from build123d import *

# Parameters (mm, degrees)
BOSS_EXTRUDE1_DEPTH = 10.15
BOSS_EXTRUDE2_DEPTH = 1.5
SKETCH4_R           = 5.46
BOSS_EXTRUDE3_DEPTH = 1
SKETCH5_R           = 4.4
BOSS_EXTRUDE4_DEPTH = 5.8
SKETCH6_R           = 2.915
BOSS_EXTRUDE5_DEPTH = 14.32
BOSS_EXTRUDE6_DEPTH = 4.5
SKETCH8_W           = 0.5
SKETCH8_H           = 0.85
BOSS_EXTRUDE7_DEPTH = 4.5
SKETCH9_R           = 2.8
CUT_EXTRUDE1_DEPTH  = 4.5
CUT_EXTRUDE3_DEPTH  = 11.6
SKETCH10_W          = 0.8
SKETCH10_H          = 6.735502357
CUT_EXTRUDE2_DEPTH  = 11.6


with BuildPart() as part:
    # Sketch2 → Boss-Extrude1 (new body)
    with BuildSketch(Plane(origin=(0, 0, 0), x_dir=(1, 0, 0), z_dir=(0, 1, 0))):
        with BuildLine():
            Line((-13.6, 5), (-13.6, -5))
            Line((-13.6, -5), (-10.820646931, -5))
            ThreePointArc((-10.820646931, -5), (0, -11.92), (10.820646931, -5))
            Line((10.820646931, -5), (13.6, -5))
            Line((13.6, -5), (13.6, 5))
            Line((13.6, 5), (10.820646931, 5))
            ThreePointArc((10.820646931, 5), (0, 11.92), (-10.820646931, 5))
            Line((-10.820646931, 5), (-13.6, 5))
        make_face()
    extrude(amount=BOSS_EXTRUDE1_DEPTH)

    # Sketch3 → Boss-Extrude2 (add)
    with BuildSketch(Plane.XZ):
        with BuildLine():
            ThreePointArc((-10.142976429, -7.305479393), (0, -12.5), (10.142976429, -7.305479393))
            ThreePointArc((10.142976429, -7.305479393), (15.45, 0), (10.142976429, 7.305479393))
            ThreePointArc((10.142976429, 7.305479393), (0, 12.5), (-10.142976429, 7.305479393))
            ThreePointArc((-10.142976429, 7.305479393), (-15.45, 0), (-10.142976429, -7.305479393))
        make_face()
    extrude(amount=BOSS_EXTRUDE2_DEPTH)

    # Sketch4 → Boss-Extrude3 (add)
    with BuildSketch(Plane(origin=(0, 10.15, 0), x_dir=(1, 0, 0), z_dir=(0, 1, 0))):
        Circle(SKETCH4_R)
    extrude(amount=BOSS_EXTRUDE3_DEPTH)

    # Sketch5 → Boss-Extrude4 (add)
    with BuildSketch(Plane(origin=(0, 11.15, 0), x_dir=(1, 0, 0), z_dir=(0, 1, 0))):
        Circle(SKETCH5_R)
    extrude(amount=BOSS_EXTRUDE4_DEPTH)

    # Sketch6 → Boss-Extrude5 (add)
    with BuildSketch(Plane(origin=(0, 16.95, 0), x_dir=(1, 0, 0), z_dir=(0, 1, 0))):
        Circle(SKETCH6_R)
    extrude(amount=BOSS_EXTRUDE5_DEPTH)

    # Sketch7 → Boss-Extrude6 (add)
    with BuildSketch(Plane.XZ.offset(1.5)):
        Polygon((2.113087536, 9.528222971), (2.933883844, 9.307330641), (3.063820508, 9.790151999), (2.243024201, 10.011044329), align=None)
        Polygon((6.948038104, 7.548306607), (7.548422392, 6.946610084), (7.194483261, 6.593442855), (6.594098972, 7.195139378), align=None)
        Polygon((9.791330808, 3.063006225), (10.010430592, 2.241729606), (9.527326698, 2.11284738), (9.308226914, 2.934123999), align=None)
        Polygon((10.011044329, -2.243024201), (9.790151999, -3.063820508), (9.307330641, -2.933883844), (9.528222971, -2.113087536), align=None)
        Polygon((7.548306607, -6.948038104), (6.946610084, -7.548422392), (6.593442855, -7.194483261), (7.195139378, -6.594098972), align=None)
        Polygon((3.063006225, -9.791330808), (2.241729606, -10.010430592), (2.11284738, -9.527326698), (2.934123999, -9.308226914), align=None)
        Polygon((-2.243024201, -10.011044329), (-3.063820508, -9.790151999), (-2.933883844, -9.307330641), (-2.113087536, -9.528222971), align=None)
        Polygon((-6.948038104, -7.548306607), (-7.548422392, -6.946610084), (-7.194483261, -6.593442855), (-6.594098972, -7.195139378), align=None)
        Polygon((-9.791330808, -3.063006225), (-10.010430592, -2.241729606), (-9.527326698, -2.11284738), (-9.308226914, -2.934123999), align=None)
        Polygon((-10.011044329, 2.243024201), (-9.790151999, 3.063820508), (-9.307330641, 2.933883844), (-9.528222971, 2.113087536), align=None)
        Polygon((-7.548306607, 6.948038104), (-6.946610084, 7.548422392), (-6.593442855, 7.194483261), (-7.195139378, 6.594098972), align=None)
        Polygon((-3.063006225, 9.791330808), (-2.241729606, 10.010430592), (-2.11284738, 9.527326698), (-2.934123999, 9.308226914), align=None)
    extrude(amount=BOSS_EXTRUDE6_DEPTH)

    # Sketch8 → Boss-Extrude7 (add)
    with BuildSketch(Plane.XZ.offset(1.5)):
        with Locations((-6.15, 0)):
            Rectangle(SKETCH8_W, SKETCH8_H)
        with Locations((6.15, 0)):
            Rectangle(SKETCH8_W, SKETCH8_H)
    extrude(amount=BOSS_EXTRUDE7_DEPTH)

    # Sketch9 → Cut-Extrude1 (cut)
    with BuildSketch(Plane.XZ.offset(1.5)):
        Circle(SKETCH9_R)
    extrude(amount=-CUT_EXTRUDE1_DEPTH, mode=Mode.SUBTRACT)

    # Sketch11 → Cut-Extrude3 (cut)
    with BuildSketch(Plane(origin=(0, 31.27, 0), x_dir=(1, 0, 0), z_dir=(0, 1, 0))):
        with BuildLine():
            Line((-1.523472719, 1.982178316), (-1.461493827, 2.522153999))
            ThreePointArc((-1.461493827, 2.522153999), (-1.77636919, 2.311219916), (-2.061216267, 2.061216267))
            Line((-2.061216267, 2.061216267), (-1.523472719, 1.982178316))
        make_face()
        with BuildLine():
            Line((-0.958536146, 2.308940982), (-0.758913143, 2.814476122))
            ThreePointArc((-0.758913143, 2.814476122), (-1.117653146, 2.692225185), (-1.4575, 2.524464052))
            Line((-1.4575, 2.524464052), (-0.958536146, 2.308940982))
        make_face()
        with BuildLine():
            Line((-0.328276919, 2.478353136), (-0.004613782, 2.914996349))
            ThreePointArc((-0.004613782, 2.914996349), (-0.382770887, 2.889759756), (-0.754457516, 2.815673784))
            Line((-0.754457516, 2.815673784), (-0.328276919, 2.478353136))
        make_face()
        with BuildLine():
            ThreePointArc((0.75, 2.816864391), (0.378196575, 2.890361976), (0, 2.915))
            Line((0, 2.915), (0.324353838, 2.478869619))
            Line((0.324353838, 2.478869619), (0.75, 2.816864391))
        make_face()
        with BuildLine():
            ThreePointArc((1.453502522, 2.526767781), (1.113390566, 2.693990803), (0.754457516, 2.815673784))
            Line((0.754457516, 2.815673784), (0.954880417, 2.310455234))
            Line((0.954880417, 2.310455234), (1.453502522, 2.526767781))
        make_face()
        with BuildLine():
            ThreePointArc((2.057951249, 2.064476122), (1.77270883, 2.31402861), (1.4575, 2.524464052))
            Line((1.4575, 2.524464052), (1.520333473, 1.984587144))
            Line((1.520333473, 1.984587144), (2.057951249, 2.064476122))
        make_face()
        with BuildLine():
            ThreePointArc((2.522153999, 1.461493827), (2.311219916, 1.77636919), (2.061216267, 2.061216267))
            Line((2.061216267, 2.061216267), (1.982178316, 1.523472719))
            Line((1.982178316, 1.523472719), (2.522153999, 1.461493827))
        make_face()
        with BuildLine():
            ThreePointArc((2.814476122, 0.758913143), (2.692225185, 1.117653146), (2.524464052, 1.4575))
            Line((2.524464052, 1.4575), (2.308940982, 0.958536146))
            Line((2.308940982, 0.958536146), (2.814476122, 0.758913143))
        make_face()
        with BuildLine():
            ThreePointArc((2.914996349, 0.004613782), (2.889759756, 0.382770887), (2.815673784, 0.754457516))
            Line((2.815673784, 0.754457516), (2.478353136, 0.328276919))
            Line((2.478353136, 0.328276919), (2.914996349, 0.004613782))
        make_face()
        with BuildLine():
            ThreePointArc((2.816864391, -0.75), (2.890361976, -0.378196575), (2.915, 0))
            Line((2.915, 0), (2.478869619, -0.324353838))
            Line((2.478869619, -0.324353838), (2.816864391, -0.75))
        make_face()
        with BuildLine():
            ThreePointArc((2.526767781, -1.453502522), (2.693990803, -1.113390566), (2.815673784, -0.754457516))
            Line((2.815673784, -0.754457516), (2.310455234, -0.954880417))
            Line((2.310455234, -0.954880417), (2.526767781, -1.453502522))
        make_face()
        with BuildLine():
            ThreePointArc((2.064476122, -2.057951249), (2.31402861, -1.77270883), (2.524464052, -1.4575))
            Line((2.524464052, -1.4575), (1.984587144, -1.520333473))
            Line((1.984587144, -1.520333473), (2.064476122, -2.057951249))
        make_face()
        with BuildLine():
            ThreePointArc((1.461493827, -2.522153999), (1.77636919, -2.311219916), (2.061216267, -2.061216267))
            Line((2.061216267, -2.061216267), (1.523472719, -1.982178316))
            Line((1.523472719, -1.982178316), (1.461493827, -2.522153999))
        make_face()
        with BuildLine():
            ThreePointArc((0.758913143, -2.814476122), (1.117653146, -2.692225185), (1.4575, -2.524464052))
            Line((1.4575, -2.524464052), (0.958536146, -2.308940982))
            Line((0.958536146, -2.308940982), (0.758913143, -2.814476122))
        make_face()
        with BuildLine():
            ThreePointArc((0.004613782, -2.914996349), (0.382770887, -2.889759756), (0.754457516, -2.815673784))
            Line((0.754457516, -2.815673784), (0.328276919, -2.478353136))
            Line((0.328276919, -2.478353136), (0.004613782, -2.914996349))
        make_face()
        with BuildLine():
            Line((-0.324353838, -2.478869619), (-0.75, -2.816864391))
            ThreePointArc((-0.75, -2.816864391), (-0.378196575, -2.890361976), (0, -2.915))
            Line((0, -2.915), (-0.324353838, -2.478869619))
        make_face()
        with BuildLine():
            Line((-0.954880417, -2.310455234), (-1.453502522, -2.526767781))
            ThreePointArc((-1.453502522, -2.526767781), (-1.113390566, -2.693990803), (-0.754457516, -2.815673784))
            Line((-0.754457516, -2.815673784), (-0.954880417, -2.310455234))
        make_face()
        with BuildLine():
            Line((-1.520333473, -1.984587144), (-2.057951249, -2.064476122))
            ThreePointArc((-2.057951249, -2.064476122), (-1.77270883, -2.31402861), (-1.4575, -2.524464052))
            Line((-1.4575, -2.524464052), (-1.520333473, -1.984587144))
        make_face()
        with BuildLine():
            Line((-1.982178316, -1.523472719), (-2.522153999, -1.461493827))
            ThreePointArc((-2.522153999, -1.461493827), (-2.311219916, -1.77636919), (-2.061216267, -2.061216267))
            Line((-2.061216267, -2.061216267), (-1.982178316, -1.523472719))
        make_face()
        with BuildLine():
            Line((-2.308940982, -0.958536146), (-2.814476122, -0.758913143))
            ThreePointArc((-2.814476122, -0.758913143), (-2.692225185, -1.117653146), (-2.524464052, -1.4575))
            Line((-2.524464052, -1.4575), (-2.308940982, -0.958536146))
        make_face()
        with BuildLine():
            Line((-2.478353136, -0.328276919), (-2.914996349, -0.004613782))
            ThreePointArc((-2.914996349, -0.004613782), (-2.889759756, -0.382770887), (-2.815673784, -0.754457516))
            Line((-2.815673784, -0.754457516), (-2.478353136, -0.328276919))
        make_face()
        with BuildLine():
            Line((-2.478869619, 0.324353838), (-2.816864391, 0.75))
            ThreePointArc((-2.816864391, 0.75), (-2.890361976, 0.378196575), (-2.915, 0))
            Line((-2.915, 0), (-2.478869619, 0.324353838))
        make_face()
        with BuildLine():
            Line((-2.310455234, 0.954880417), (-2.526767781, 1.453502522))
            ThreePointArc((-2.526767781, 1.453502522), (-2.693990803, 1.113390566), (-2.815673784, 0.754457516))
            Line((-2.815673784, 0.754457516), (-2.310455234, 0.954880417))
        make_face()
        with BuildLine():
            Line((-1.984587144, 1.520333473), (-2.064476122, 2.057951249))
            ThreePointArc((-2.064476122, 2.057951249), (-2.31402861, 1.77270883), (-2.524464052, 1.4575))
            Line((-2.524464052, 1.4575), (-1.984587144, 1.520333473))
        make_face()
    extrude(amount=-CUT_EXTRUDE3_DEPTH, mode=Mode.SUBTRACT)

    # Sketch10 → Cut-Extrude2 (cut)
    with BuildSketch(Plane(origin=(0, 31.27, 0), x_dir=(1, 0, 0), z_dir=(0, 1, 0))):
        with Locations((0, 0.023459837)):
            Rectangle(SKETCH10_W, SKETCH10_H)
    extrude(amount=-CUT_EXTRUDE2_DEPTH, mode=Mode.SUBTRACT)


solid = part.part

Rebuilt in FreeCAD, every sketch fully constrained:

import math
import FreeCAD as App
import Part
import Sketcher

V = App.Vector
Q = App.Units.Quantity

doc = App.newDocument("Part")
body = doc.addObject("PartDesign::Body", "Body")

# Sketch on XZ plane
sketch1 = body.newObject("Sketcher::SketchObject", "Sketch")
sketch1.AttachmentSupport = (doc.getObject("XZ_Plane"), [""])
sketch1.MapMode = "FlatFace"
sketch1.addGeometry([
    Part.LineSegment(V(-13.6, -5, 0), V(-13.6, 5, 0)),  # 0
    Part.LineSegment(V(-13.6, 5, 0), V(-10.8, 5, 0)),  # 1
    Part.ArcOfCircle(Part.Circle(V(0, 0, 0), V(0, 0, 1), 11.9), math.radians(25), math.radians(155)),  # 2
    Part.LineSegment(V(10.8, 5, 0), V(13.6, 5, 0)),  # 3
    Part.LineSegment(V(13.6, 5, 0), V(13.6, -5, 0)),  # 4
    Part.LineSegment(V(13.6, -5, 0), V(10.8, -5, 0)),  # 5
    Part.ArcOfCircle(Part.Circle(V(0, 0, 0), V(0, 0, 1), 11.9), math.radians(-155), math.radians(-25)),  # 6
    Part.LineSegment(V(-10.8, -5, 0), V(-13.6, -5, 0)),  # 7
], False)
sketch1.addConstraint([
    Sketcher.Constraint("Coincident", 0, 2, 1, 1),
    Sketcher.Constraint("Coincident", 1, 2, 2, 2),
    Sketcher.Constraint("Coincident", 2, 1, 3, 1),
    Sketcher.Constraint("Coincident", 3, 2, 4, 1),
    Sketcher.Constraint("Coincident", 4, 2, 5, 1),
    Sketcher.Constraint("Coincident", 5, 2, 6, 2),
    Sketcher.Constraint("Coincident", 6, 1, 7, 1),
    Sketcher.Constraint("Coincident", 7, 2, 0, 1),
    Sketcher.Constraint("Vertical", 0),
    Sketcher.Constraint("Horizontal", 1),
    Sketcher.Constraint("Horizontal", 3),
    Sketcher.Constraint("Vertical", 4),
    Sketcher.Constraint("Horizontal", 5),
    Sketcher.Constraint("Horizontal", 7),
    Sketcher.Constraint("Coincident", 2, 3, -1, 1),
    Sketcher.Constraint("Coincident", 6, 3, -1, 1),
    Sketcher.Constraint("Equal", 2, 6),
    Sketcher.Constraint("Symmetric", 0, 2, 4, 2, -1, 1),
    Sketcher.Constraint("Horizontal", 1, 2, 2, 1),
    Sketcher.Constraint("Horizontal", 5, 2, 6, 1),
    Sketcher.Constraint("DistanceY", 0, 1, 0, 2, Q("10 mm")),
    Sketcher.Constraint("Radius", 2, Q("11.92 mm")),
    Sketcher.Constraint("DistanceX", 0, 2, -1, 1, Q("13.6 mm")),
])
pad1 = body.newObject("PartDesign::Pad", "Pad")
pad1.Profile = sketch1
pad1.Length = 10.15
pad1.Reversed = True

# Sketch on XZ plane
sketch2 = body.newObject("Sketcher::SketchObject", "Sketch001")
sketch2.AttachmentSupport = (doc.getObject("XZ_Plane"), [""])
sketch2.MapMode = "FlatFace"
sketch2.addGeometry([
    Part.ArcOfCircle(Part.Circle(V(0, 0, 0), V(0, 0, 1), 12), math.radians(-144), math.radians(-36)),
    Part.ArcOfCircle(Part.Circle(V(8, 0, 0), V(0, 0, 1), 8), math.radians(-72), math.radians(72)),
    Part.ArcOfCircle(Part.Circle(V(0, 0, 0), V(0, 0, 1), 12), math.radians(36), math.radians(144)),
    Part.ArcOfCircle(Part.Circle(V(-8, 0, 0), V(0, 0, 1), 8), math.radians(108), math.radians(252)),
], False)
sketch2.addConstraint([
    Sketcher.Constraint("Coincident", 0, 2, 1, 1),
    Sketcher.Constraint("Coincident", 1, 2, 2, 1),
    Sketcher.Constraint("Coincident", 2, 2, 3, 1),
    Sketcher.Constraint("Coincident", 3, 2, 0, 1),
    Sketcher.Constraint("Coincident", 0, 3, -1, 1),
    Sketcher.Constraint("Coincident", 2, 3, -1, 1),
    Sketcher.Constraint("Equal", 0, 2),
    Sketcher.Constraint("Equal", 1, 3),
    Sketcher.Constraint("Symmetric", 1, 3, 3, 3, -1, 1),
    Sketcher.Constraint("PointOnObject", 1, 3, -1),
    Sketcher.Constraint("Radius", 0, Q("12.5 mm")),
    Sketcher.Constraint("Radius", 1, Q("7.681757 mm")),
    Sketcher.Constraint("DistanceY", 0, 2, -1, 1, Q("7.305479 mm")),
])
pad2 = body.newObject("PartDesign::Pad", "Pad001")
pad2.Profile = sketch2
pad2.Length = 1.5

# Sketch on XZ plane
sketch3 = body.newObject("Sketcher::SketchObject", "Sketch002")
sketch3.AttachmentSupport = (doc.getObject("XZ_Plane"), [""])
sketch3.MapMode = "FlatFace"
sketch3.AttachmentOffset = App.Placement(V(0, 0, -10.15), App.Rotation())
sketch3.addGeometry(Part.Circle(V(0, 0, 0), V(0, 0, 1), 5), False)
sketch3.addConstraint([
    Sketcher.Constraint("Coincident", 0, 3, -1, 1),
    Sketcher.Constraint("Diameter", 0, Q("10.92 mm")),
])
pad3 = body.newObject("PartDesign::Pad", "Pad002")
pad3.Profile = sketch3
pad3.Length = 1
pad3.Reversed = True

# Sketch on XZ plane
sketch4 = body.newObject("Sketcher::SketchObject", "Sketch003")
sketch4.AttachmentSupport = (doc.getObject("XZ_Plane"), [""])
sketch4.MapMode = "FlatFace"
sketch4.AttachmentOffset = App.Placement(V(0, 0, -11.15), App.Rotation())
sketch4.addGeometry(Part.Circle(V(0, 0, 0), V(0, 0, 1), 4.4), False)
sketch4.addConstraint([
    Sketcher.Constraint("Coincident", 0, 3, -1, 1),
    Sketcher.Constraint("Diameter", 0, Q("8.8 mm")),
])
pad4 = body.newObject("PartDesign::Pad", "Pad003")
pad4.Profile = sketch4
pad4.Length = 5.8
pad4.Reversed = True

# Sketch on XZ plane
sketch5 = body.newObject("Sketcher::SketchObject", "Sketch004")
sketch5.AttachmentSupport = (doc.getObject("XZ_Plane"), [""])
sketch5.MapMode = "FlatFace"
sketch5.AttachmentOffset = App.Placement(V(0, 0, -16.95), App.Rotation())
sketch5.addGeometry(Part.Circle(V(0, 0, 0), V(0, 0, 1), 2.9), False)
sketch5.addConstraint([
    Sketcher.Constraint("Coincident", 0, 3, -1, 1),
    Sketcher.Constraint("Diameter", 0, Q("5.83 mm")),
])
pad5 = body.newObject("PartDesign::Pad", "Pad004")
pad5.Profile = sketch5
pad5.Length = 14.32
pad5.Reversed = True

# Sketch on XZ plane
sketch6 = body.newObject("Sketcher::SketchObject", "Sketch005")
sketch6.AttachmentSupport = (doc.getObject("XZ_Plane"), [""])
sketch6.MapMode = "FlatFace"
sketch6.AttachmentOffset = App.Placement(V(0, 0, 1.5), App.Rotation())
sketch6.addGeometry([
    Part.LineSegment(V(2.1, 9.5, 0), V(2.9, 9.3, 0)),  # 0
    Part.LineSegment(V(2.9, 9.3, 0), V(3.1, 9.8, 0)),  # 1
    Part.LineSegment(V(3.1, 9.8, 0), V(2.2, 10, 0)),  # 2
    Part.LineSegment(V(2.2, 10, 0), V(2.1, 9.5, 0)),  # 3
    Part.LineSegment(V(7.5, 6.9, 0), V(6.9, 7.5, 0)),  # 4
    Part.LineSegment(V(6.9, 7.5, 0), V(6.6, 7.2, 0)),  # 5
    Part.LineSegment(V(6.6, 7.2, 0), V(7.2, 6.6, 0)),  # 6
    Part.LineSegment(V(7.2, 6.6, 0), V(7.5, 6.9, 0)),  # 7
    Part.LineSegment(V(10, 2.2, 0), V(9.8, 3.1, 0)),  # 8
    Part.LineSegment(V(9.8, 3.1, 0), V(9.3, 2.9, 0)),  # 9
    Part.LineSegment(V(9.3, 2.9, 0), V(9.5, 2.1, 0)),  # 10
    Part.LineSegment(V(9.5, 2.1, 0), V(10, 2.2, 0)),  # 11
    Part.LineSegment(V(9.8, -3.1, 0), V(10, -2.2, 0)),  # 12
    Part.LineSegment(V(10, -2.2, 0), V(9.5, -2.1, 0)),  # 13
    Part.LineSegment(V(9.5, -2.1, 0), V(9.3, -2.9, 0)),  # 14
    Part.LineSegment(V(9.3, -2.9, 0), V(9.8, -3.1, 0)),  # 15
    Part.LineSegment(V(6.9, -7.5, 0), V(7.5, -6.9, 0)),  # 16
    Part.LineSegment(V(7.5, -6.9, 0), V(7.2, -6.6, 0)),  # 17
    Part.LineSegment(V(7.2, -6.6, 0), V(6.6, -7.2, 0)),  # 18
    Part.LineSegment(V(6.6, -7.2, 0), V(6.9, -7.5, 0)),  # 19
    Part.LineSegment(V(2.2, -10, 0), V(3.1, -9.8, 0)),  # 20
    Part.LineSegment(V(3.1, -9.8, 0), V(2.9, -9.3, 0)),  # 21
    Part.LineSegment(V(2.9, -9.3, 0), V(2.1, -9.5, 0)),  # 22
    Part.LineSegment(V(2.1, -9.5, 0), V(2.2, -10, 0)),  # 23
    Part.LineSegment(V(-3.1, -9.8, 0), V(-2.2, -10, 0)),  # 24
    Part.LineSegment(V(-2.2, -10, 0), V(-2.1, -9.5, 0)),  # 25
    Part.LineSegment(V(-2.1, -9.5, 0), V(-2.9, -9.3, 0)),  # 26
    Part.LineSegment(V(-2.9, -9.3, 0), V(-3.1, -9.8, 0)),  # 27
    Part.LineSegment(V(-7.5, -6.9, 0), V(-6.9, -7.5, 0)),  # 28
    Part.LineSegment(V(-6.9, -7.5, 0), V(-6.6, -7.2, 0)),  # 29
    Part.LineSegment(V(-6.6, -7.2, 0), V(-7.2, -6.6, 0)),  # 30
    Part.LineSegment(V(-7.2, -6.6, 0), V(-7.5, -6.9, 0)),  # 31
    Part.LineSegment(V(-10, -2.2, 0), V(-9.8, -3.1, 0)),  # 32
    Part.LineSegment(V(-9.8, -3.1, 0), V(-9.3, -2.9, 0)),  # 33
    Part.LineSegment(V(-9.3, -2.9, 0), V(-9.5, -2.1, 0)),  # 34
    Part.LineSegment(V(-9.5, -2.1, 0), V(-10, -2.2, 0)),  # 35
    Part.LineSegment(V(-9.8, 3.1, 0), V(-10, 2.2, 0)),  # 36
    Part.LineSegment(V(-10, 2.2, 0), V(-9.5, 2.1, 0)),  # 37
    Part.LineSegment(V(-9.5, 2.1, 0), V(-9.3, 2.9, 0)),  # 38
    Part.LineSegment(V(-9.3, 2.9, 0), V(-9.8, 3.1, 0)),  # 39
    Part.LineSegment(V(-6.9, 7.5, 0), V(-7.5, 6.9, 0)),  # 40
    Part.LineSegment(V(-7.5, 6.9, 0), V(-7.2, 6.6, 0)),  # 41
    Part.LineSegment(V(-7.2, 6.6, 0), V(-6.6, 7.2, 0)),  # 42
    Part.LineSegment(V(-6.6, 7.2, 0), V(-6.9, 7.5, 0)),  # 43
    Part.LineSegment(V(-2.2, 10, 0), V(-3.1, 9.8, 0)),  # 44
    Part.LineSegment(V(-3.1, 9.8, 0), V(-2.9, 9.3, 0)),  # 45
    Part.LineSegment(V(-2.9, 9.3, 0), V(-2.1, 9.5, 0)),  # 46
    Part.LineSegment(V(-2.1, 9.5, 0), V(-2.2, 10, 0)),  # 47
], False)
sketch6.addConstraint([
    Sketcher.Constraint("Coincident", 0, 2, 1, 1),
    Sketcher.Constraint("Coincident", 1, 2, 2, 1),
    Sketcher.Constraint("Coincident", 2, 2, 3, 1),
    Sketcher.Constraint("Coincident", 3, 2, 0, 1),
    Sketcher.Constraint("Coincident", 4, 2, 5, 1),
    Sketcher.Constraint("Coincident", 5, 2, 6, 1),
    Sketcher.Constraint("Coincident", 6, 2, 7, 1),
    Sketcher.Constraint("Coincident", 7, 2, 4, 1),
    Sketcher.Constraint("Coincident", 8, 2, 9, 1),
    Sketcher.Constraint("Coincident", 9, 2, 10, 1),
    Sketcher.Constraint("Coincident", 10, 2, 11, 1),
    Sketcher.Constraint("Coincident", 11, 2, 8, 1),
    Sketcher.Constraint("Coincident", 12, 2, 13, 1),
    Sketcher.Constraint("Coincident", 13, 2, 14, 1),
    Sketcher.Constraint("Coincident", 14, 2, 15, 1),
    Sketcher.Constraint("Coincident", 15, 2, 12, 1),
    Sketcher.Constraint("Coincident", 16, 2, 17, 1),
    Sketcher.Constraint("Coincident", 17, 2, 18, 1),
    Sketcher.Constraint("Coincident", 18, 2, 19, 1),
    Sketcher.Constraint("Coincident", 19, 2, 16, 1),
    Sketcher.Constraint("Coincident", 20, 2, 21, 1),
    Sketcher.Constraint("Coincident", 21, 2, 22, 1),
    Sketcher.Constraint("Coincident", 22, 2, 23, 1),
    Sketcher.Constraint("Coincident", 23, 2, 20, 1),
    Sketcher.Constraint("Coincident", 24, 2, 25, 1),
    Sketcher.Constraint("Coincident", 25, 2, 26, 1),
    Sketcher.Constraint("Coincident", 26, 2, 27, 1),
    Sketcher.Constraint("Coincident", 27, 2, 24, 1),
    Sketcher.Constraint("Coincident", 28, 2, 29, 1),
    Sketcher.Constraint("Coincident", 29, 2, 30, 1),
    Sketcher.Constraint("Coincident", 30, 2, 31, 1),
    Sketcher.Constraint("Coincident", 31, 2, 28, 1),
    Sketcher.Constraint("Coincident", 32, 2, 33, 1),
    Sketcher.Constraint("Coincident", 33, 2, 34, 1),
    Sketcher.Constraint("Coincident", 34, 2, 35, 1),
    Sketcher.Constraint("Coincident", 35, 2, 32, 1),
    Sketcher.Constraint("Coincident", 36, 2, 37, 1),
    Sketcher.Constraint("Coincident", 37, 2, 38, 1),
    Sketcher.Constraint("Coincident", 38, 2, 39, 1),
    Sketcher.Constraint("Coincident", 39, 2, 36, 1),
    Sketcher.Constraint("Coincident", 40, 2, 41, 1),
    Sketcher.Constraint("Coincident", 41, 2, 42, 1),
    Sketcher.Constraint("Coincident", 42, 2, 43, 1),
    Sketcher.Constraint("Coincident", 43, 2, 40, 1),
    Sketcher.Constraint("Coincident", 44, 2, 45, 1),
    Sketcher.Constraint("Coincident", 45, 2, 46, 1),
    Sketcher.Constraint("Coincident", 46, 2, 47, 1),
    Sketcher.Constraint("Coincident", 47, 2, 44, 1),
    Sketcher.Constraint("Symmetric", 2, 2, 24, 2, -1, 1),
    Sketcher.Constraint("Symmetric", 3, 2, 25, 2, -1, 1),
    Sketcher.Constraint("Symmetric", 0, 2, 26, 2, -1, 1),
    Sketcher.Constraint("Symmetric", 1, 2, 27, 2, -1, 1),
    Sketcher.Constraint("Symmetric", 4, 2, 28, 2, -1, 1),
    Sketcher.Constraint("Symmetric", 5, 2, 29, 2, -1, 1),
    Sketcher.Constraint("Symmetric", 6, 2, 30, 2, -1, 1),
    Sketcher.Constraint("Symmetric", 7, 2, 31, 2, -1, 1),
    Sketcher.Constraint("Symmetric", 8, 2, 32, 2, -1, 1),
    Sketcher.Constraint("Symmetric", 9, 2, 33, 2, -1, 1),
    Sketcher.Constraint("Symmetric", 10, 2, 34, 2, -1, 1),
    Sketcher.Constraint("Symmetric", 11, 2, 35, 2, -1, 1),
    Sketcher.Constraint("Symmetric", 12, 2, 36, 2, -1, 1),
    Sketcher.Constraint("Symmetric", 13, 2, 37, 2, -1, 1),
    Sketcher.Constraint("Symmetric", 14, 2, 38, 2, -1, 1),
    Sketcher.Constraint("Symmetric", 15, 2, 39, 2, -1, 1),
    Sketcher.Constraint("Symmetric", 16, 2, 40, 2, -1, 1),
    Sketcher.Constraint("Symmetric", 17, 2, 41, 2, -1, 1),
    Sketcher.Constraint("Symmetric", 18, 2, 42, 2, -1, 1),
    Sketcher.Constraint("Symmetric", 19, 2, 43, 2, -1, 1),
    Sketcher.Constraint("Symmetric", 20, 2, 44, 2, -1, 1),
    Sketcher.Constraint("Symmetric", 21, 2, 45, 2, -1, 1),
    Sketcher.Constraint("Symmetric", 22, 2, 46, 2, -1, 1),
    Sketcher.Constraint("Symmetric", 23, 2, 47, 2, -1, 1),
    Sketcher.Constraint("Perpendicular", 0, 1),
    Sketcher.Constraint("Perpendicular", 1, 2),
    Sketcher.Constraint("Perpendicular", 2, 3),
    Sketcher.Constraint("Perpendicular", 4, 5),
    Sketcher.Constraint("Perpendicular", 5, 6),
    Sketcher.Constraint("Perpendicular", 6, 7),
    Sketcher.Constraint("Perpendicular", 8, 9),
    Sketcher.Constraint("Perpendicular", 9, 10),
    Sketcher.Constraint("Perpendicular", 10, 11),
    Sketcher.Constraint("Parallel", 3, 12),
    Sketcher.Constraint("Perpendicular", 12, 13),
    Sketcher.Constraint("Perpendicular", 13, 14),
    Sketcher.Constraint("Perpendicular", 14, 15),
    Sketcher.Constraint("Parallel", 7, 16),
    Sketcher.Constraint("Perpendicular", 16, 17),
    Sketcher.Constraint("Perpendicular", 17, 18),
    Sketcher.Constraint("Perpendicular", 18, 19),
    Sketcher.Constraint("Parallel", 11, 20),
    Sketcher.Constraint("Perpendicular", 20, 21),
    Sketcher.Constraint("Perpendicular", 21, 22),
    Sketcher.Constraint("Perpendicular", 22, 23),
    Sketcher.Constraint("Equal", 2, 4),
    Sketcher.Constraint("Equal", 3, 5),
    Sketcher.Constraint("Equal", 6, 8),
    Sketcher.Constraint("Equal", 7, 9),
    Sketcher.Constraint("Equal", 10, 12),
    Sketcher.Constraint("Equal", 11, 13),
    Sketcher.Constraint("Equal", 14, 16),
    Sketcher.Constraint("Equal", 15, 17),
    Sketcher.Constraint("Equal", 18, 20),
    Sketcher.Constraint("Equal", 19, 21),
    Sketcher.Constraint("Distance", 1, Q("0.5 mm")),
    Sketcher.Constraint("Distance", 0, Q("0.85 mm")),
    Sketcher.Constraint("DistanceX", -1, 1, 5, 2, Q("6.594099 mm")),
    Sketcher.Constraint("DistanceY", 17, 2, -1, 1, Q("6.594099 mm")),
    Sketcher.Constraint("DistanceX", 0, 2, 6, 2, Q("4.260599 mm")),
    Sketcher.Constraint("DistanceX", 1, 2, 7, 2, Q("4.484602 mm")),
    Sketcher.Constraint("DistanceY", 8, 2, 4, 2, Q("4.4853 mm")),
    Sketcher.Constraint("DistanceX", 9, 2, 10, 2, Q("0.2191 mm")),
    Sketcher.Constraint("DistanceX", 14, 2, 11, 2, Q("0.7031 mm")),
    Sketcher.Constraint("DistanceY", 18, 2, 14, 2, Q("4.260599 mm")),
    Sketcher.Constraint("DistanceX", 20, 2, 16, 2, Q("4.4853 mm")),
    Sketcher.Constraint("DistanceY", 23, 2, 26, 2, Q("0.7031 mm")),
    Sketcher.Constraint("DistanceY", -1, 1, 0, 2, Q("9.307331 mm")),
    Sketcher.Constraint("DistanceX", -1, 1, 1, 2, Q("3.063821 mm")),
    Sketcher.Constraint("DistanceY", -1, 1, 5, 2, Q("7.195139 mm")),
    Sketcher.Constraint("DistanceX", -1, 1, 8, 2, Q("9.791331 mm")),
    Sketcher.Constraint("DistanceX", -1, 1, 17, 2, Q("7.195139 mm")),
])
pad6 = body.newObject("PartDesign::Pad", "Pad005")
pad6.Profile = sketch6
pad6.Length = 4.5

# Sketch on XZ plane
sketch7 = body.newObject("Sketcher::SketchObject", "Sketch006")
sketch7.AttachmentSupport = (doc.getObject("XZ_Plane"), [""])
sketch7.MapMode = "FlatFace"
sketch7.AttachmentOffset = App.Placement(V(0, 0, 1.5), App.Rotation())
sketch7.addGeometry([
    Part.LineSegment(V(-6.4, 0.4, 0), V(-6.4, -0.4, 0)),  # 0
    Part.LineSegment(V(-6.4, -0.4, 0), V(-5.9, -0.4, 0)),  # 1
    Part.LineSegment(V(-5.9, -0.4, 0), V(-5.9, 0.4, 0)),  # 2
    Part.LineSegment(V(-5.9, 0.4, 0), V(-6.4, 0.4, 0)),  # 3
    Part.LineSegment(V(5.9, 0.4, 0), V(5.9, -0.4, 0)),  # 4
    Part.LineSegment(V(5.9, -0.4, 0), V(6.4, -0.4, 0)),  # 5
    Part.LineSegment(V(6.4, -0.4, 0), V(6.4, 0.4, 0)),  # 6
    Part.LineSegment(V(6.4, 0.4, 0), V(5.9, 0.4, 0)),  # 7
], False)
sketch7.addConstraint([
    Sketcher.Constraint("Coincident", 0, 2, 1, 1),
    Sketcher.Constraint("Coincident", 1, 2, 2, 1),
    Sketcher.Constraint("Coincident", 2, 2, 3, 1),
    Sketcher.Constraint("Coincident", 3, 2, 0, 1),
    Sketcher.Constraint("Coincident", 4, 2, 5, 1),
    Sketcher.Constraint("Coincident", 5, 2, 6, 1),
    Sketcher.Constraint("Coincident", 6, 2, 7, 1),
    Sketcher.Constraint("Coincident", 7, 2, 4, 1),
    Sketcher.Constraint("Vertical", 0),
    Sketcher.Constraint("Horizontal", 1),
    Sketcher.Constraint("Vertical", 2),
    Sketcher.Constraint("Horizontal", 3),
    Sketcher.Constraint("Vertical", 4),
    Sketcher.Constraint("Horizontal", 5),
    Sketcher.Constraint("Vertical", 6),
    Sketcher.Constraint("Horizontal", 7),
    Sketcher.Constraint("Symmetric", 2, 2, 4, 2, -1, 1),
    Sketcher.Constraint("Symmetric", 0, 2, 6, 2, -1, 1),
    Sketcher.Constraint("Horizontal", 1, 2, 4, 2),
    Sketcher.Constraint("DistanceX", 1, 1, 1, 2, Q("0.5 mm")),
    Sketcher.Constraint("DistanceY", 0, 2, 0, 1, Q("0.85 mm")),
    Sketcher.Constraint("DistanceX", 0, 2, -1, 1, Q("6.4 mm")),
])
pad7 = body.newObject("PartDesign::Pad", "Pad006")
pad7.Profile = sketch7
pad7.Length = 4.5

# Sketch on XZ plane
sketch8 = body.newObject("Sketcher::SketchObject", "Sketch007")
sketch8.AttachmentSupport = (doc.getObject("XZ_Plane"), [""])
sketch8.MapMode = "FlatFace"
sketch8.AttachmentOffset = App.Placement(V(0, 0, 1.5), App.Rotation())
sketch8.addGeometry(Part.Circle(V(0, 0, 0), V(0, 0, 1), 2.8), False)
sketch8.addConstraint([
    Sketcher.Constraint("Coincident", 0, 3, -1, 1),
    Sketcher.Constraint("Diameter", 0, Q("5.6 mm")),
])
pocket1 = body.newObject("PartDesign::Pocket", "Pocket")
pocket1.Profile = sketch8
pocket1.Length = 4.5

# Sketch on XZ plane
sketch9 = body.newObject("Sketcher::SketchObject", "Sketch008")
sketch9.AttachmentSupport = (doc.getObject("XZ_Plane"), [""])
sketch9.MapMode = "FlatFace"
sketch9.AttachmentOffset = App.Placement(V(0, 0, -31.27), App.Rotation())
sketch9.addGeometry([
    Part.LineSegment(V(-1.5, -2, 0), V(-1.5, -2.5, 0)),  # 0
    Part.ArcOfCircle(Part.Circle(V(0, 0, 0), V(0, 0, 1), 2.9), math.radians(-135), math.radians(-120.09)),  # 1
    Part.LineSegment(V(-2.1, -2.1, 0), V(-1.5, -2, 0)),  # 2
    Part.LineSegment(V(-1, -2.3, 0), V(-0.8, -2.8, 0)),  # 3
    Part.ArcOfCircle(Part.Circle(V(0, 0, 0), V(0, 0, 1), 2.9), math.radians(-120), math.radians(-105.09)),  # 4
    Part.LineSegment(V(-1.5, -2.5, 0), V(-1, -2.3, 0)),  # 5
    Part.LineSegment(V(-0.3, -2.5, 0), V(0, -2.9, 0)),  # 6
    Part.ArcOfCircle(Part.Circle(V(0, 0, 0), V(0, 0, 1), 2.9), math.radians(-105), math.radians(-90.09)),  # 7
    Part.LineSegment(V(-0.8, -2.8, 0), V(-0.3, -2.5, 0)),  # 8
    Part.ArcOfCircle(Part.Circle(V(0, 0, 0), V(0, 0, 1), 2.9), math.radians(-90), math.radians(-75.09)),  # 9
    Part.LineSegment(V(0, -2.9, 0), V(0.3, -2.5, 0)),  # 10
    Part.LineSegment(V(0.3, -2.5, 0), V(0.8, -2.8, 0)),  # 11
    Part.ArcOfCircle(Part.Circle(V(0, 0, 0), V(0, 0, 1), 2.9), math.radians(-75), math.radians(-60.09)),  # 12
    Part.LineSegment(V(0.8, -2.8, 0), V(1, -2.3, 0)),  # 13
    Part.LineSegment(V(1, -2.3, 0), V(1.5, -2.5, 0)),  # 14
    Part.ArcOfCircle(Part.Circle(V(0, 0, 0), V(0, 0, 1), 2.9), math.radians(-60), math.radians(-45.09)),  # 15
    Part.LineSegment(V(1.5, -2.5, 0), V(1.5, -2, 0)),  # 16
    Part.LineSegment(V(1.5, -2, 0), V(2.1, -2.1, 0)),  # 17
    Part.ArcOfCircle(Part.Circle(V(0, 0, 0), V(0, 0, 1), 2.9), math.radians(-45), math.radians(-30.09)),  # 18
    Part.LineSegment(V(2.1, -2.1, 0), V(2, -1.5, 0)),  # 19
    Part.LineSegment(V(2, -1.5, 0), V(2.5, -1.5, 0)),  # 20
    Part.ArcOfCircle(Part.Circle(V(0, 0, 0), V(0, 0, 1), 2.9), math.radians(-30), math.radians(-15.09)),  # 21
    Part.LineSegment(V(2.5, -1.5, 0), V(2.3, -1, 0)),  # 22
    Part.LineSegment(V(2.3, -1, 0), V(2.8, -0.8, 0)),  # 23
    Part.ArcOfCircle(Part.Circle(V(0, 0, 0), V(0, 0, 1), 2.9), math.radians(-15), math.radians(-0.09)),  # 24
    Part.LineSegment(V(2.8, -0.8, 0), V(2.5, -0.3, 0)),  # 25
    Part.LineSegment(V(2.5, -0.3, 0), V(2.9, 0, 0)),  # 26
    Part.ArcOfCircle(Part.Circle(V(0, 0, 0), V(0, 0, 1), 2.9), math.radians(0), math.radians(14.91)),  # 27
    Part.LineSegment(V(2.9, 0, 0), V(2.5, 0.3, 0)),  # 28
    Part.LineSegment(V(2.5, 0.3, 0), V(2.8, 0.8, 0)),  # 29
    Part.ArcOfCircle(Part.Circle(V(0, 0, 0), V(0, 0, 1), 2.9), math.radians(15), math.radians(29.91)),  # 30
    Part.LineSegment(V(2.8, 0.8, 0), V(2.3, 1, 0)),  # 31
    Part.LineSegment(V(2.3, 1, 0), V(2.5, 1.5, 0)),  # 32
    Part.ArcOfCircle(Part.Circle(V(0, 0, 0), V(0, 0, 1), 2.9), math.radians(30), math.radians(44.91)),  # 33
    Part.LineSegment(V(2.5, 1.5, 0), V(2, 1.5, 0)),  # 34
    Part.LineSegment(V(2, 1.5, 0), V(2.1, 2.1, 0)),  # 35
    Part.ArcOfCircle(Part.Circle(V(0, 0, 0), V(0, 0, 1), 2.9), math.radians(45), math.radians(59.91)),  # 36
    Part.LineSegment(V(2.1, 2.1, 0), V(1.5, 2, 0)),  # 37
    Part.LineSegment(V(1.5, 2, 0), V(1.5, 2.5, 0)),  # 38
    Part.ArcOfCircle(Part.Circle(V(0, 0, 0), V(0, 0, 1), 2.9), math.radians(60), math.radians(74.91)),  # 39
    Part.LineSegment(V(1.5, 2.5, 0), V(1, 2.3, 0)),  # 40
    Part.LineSegment(V(1, 2.3, 0), V(0.8, 2.8, 0)),  # 41
    Part.ArcOfCircle(Part.Circle(V(0, 0, 0), V(0, 0, 1), 2.9), math.radians(75), math.radians(89.91)),  # 42
    Part.LineSegment(V(0.8, 2.8, 0), V(0.3, 2.5, 0)),  # 43
    Part.LineSegment(V(0.3, 2.5, 0), V(0, 2.9, 0)),  # 44
    Part.LineSegment(V(-0.3, 2.5, 0), V(-0.8, 2.8, 0)),  # 45
    Part.ArcOfCircle(Part.Circle(V(0, 0, 0), V(0, 0, 1), 2.9), math.radians(90), math.radians(104.91)),  # 46
    Part.LineSegment(V(0, 2.9, 0), V(-0.3, 2.5, 0)),  # 47
    Part.LineSegment(V(-1, 2.3, 0), V(-1.5, 2.5, 0)),  # 48
    Part.ArcOfCircle(Part.Circle(V(0, 0, 0), V(0, 0, 1), 2.9), math.radians(105), math.radians(119.91)),  # 49
    Part.LineSegment(V(-0.8, 2.8, 0), V(-1, 2.3, 0)),  # 50
    Part.LineSegment(V(-1.5, 2, 0), V(-2.1, 2.1, 0)),  # 51
    Part.ArcOfCircle(Part.Circle(V(0, 0, 0), V(0, 0, 1), 2.9), math.radians(120), math.radians(134.91)),  # 52
    Part.LineSegment(V(-1.5, 2.5, 0), V(-1.5, 2, 0)),  # 53
    Part.LineSegment(V(-2, 1.5, 0), V(-2.5, 1.5, 0)),  # 54
    Part.ArcOfCircle(Part.Circle(V(0, 0, 0), V(0, 0, 1), 2.9), math.radians(135), math.radians(149.91)),  # 55
    Part.LineSegment(V(-2.1, 2.1, 0), V(-2, 1.5, 0)),  # 56
    Part.LineSegment(V(-2.3, 1, 0), V(-2.8, 0.8, 0)),  # 57
    Part.ArcOfCircle(Part.Circle(V(0, 0, 0), V(0, 0, 1), 2.9), math.radians(150), math.radians(164.91)),  # 58
    Part.LineSegment(V(-2.5, 1.5, 0), V(-2.3, 1, 0)),  # 59
    Part.LineSegment(V(-2.5, 0.3, 0), V(-2.9, 0, 0)),  # 60
    Part.ArcOfCircle(Part.Circle(V(0, 0, 0), V(0, 0, 1), 2.9), math.radians(165), math.radians(179.91)),  # 61
    Part.LineSegment(V(-2.8, 0.8, 0), V(-2.5, 0.3, 0)),  # 62
    Part.LineSegment(V(-2.5, -0.3, 0), V(-2.8, -0.8, 0)),  # 63
    Part.ArcOfCircle(Part.Circle(V(0, 0, 0), V(0, 0, 1), 2.9), math.radians(180), math.radians(194.91)),  # 64
    Part.LineSegment(V(-2.9, 0, 0), V(-2.5, -0.3, 0)),  # 65
    Part.LineSegment(V(-2.3, -1, 0), V(-2.5, -1.5, 0)),  # 66
    Part.ArcOfCircle(Part.Circle(V(0, 0, 0), V(0, 0, 1), 2.9), math.radians(-165), math.radians(-150.09)),  # 67
    Part.LineSegment(V(-2.8, -0.8, 0), V(-2.3, -1, 0)),  # 68
    Part.LineSegment(V(-2, -1.5, 0), V(-2.1, -2.1, 0)),  # 69
    Part.ArcOfCircle(Part.Circle(V(0, 0, 0), V(0, 0, 1), 2.9), math.radians(-150), math.radians(-135.09)),  # 70
    Part.LineSegment(V(-2.5, -1.5, 0), V(-2, -1.5, 0)),  # 71
], False)
sketch9.addConstraint([
    Sketcher.Constraint("Coincident", 0, 2, 1, 2),
    Sketcher.Constraint("Coincident", 1, 1, 2, 1),
    Sketcher.Constraint("Coincident", 2, 2, 0, 1),
    Sketcher.Constraint("Coincident", 3, 2, 4, 2),
    Sketcher.Constraint("Coincident", 4, 1, 5, 1),
    Sketcher.Constraint("Coincident", 5, 2, 3, 1),
    Sketcher.Constraint("Coincident", 6, 2, 7, 2),
    Sketcher.Constraint("Coincident", 7, 1, 8, 1),
    Sketcher.Constraint("Coincident", 8, 2, 6, 1),
    Sketcher.Constraint("Coincident", 9, 1, 10, 1),
    Sketcher.Constraint("Coincident", 10, 2, 11, 1),
    Sketcher.Constraint("Coincident", 11, 2, 9, 2),
    Sketcher.Constraint("Coincident", 12, 1, 13, 1),
    Sketcher.Constraint("Coincident", 13, 2, 14, 1),
    Sketcher.Constraint("Coincident", 14, 2, 12, 2),
    Sketcher.Constraint("Coincident", 15, 1, 16, 1),
    Sketcher.Constraint("Coincident", 16, 2, 17, 1),
    Sketcher.Constraint("Coincident", 17, 2, 15, 2),
    Sketcher.Constraint("Coincident", 18, 1, 19, 1),
    Sketcher.Constraint("Coincident", 19, 2, 20, 1),
    Sketcher.Constraint("Coincident", 20, 2, 18, 2),
    Sketcher.Constraint("Coincident", 21, 1, 22, 1),
    Sketcher.Constraint("Coincident", 22, 2, 23, 1),
    Sketcher.Constraint("Coincident", 23, 2, 21, 2),
    Sketcher.Constraint("Coincident", 24, 1, 25, 1),
    Sketcher.Constraint("Coincident", 25, 2, 26, 1),
    Sketcher.Constraint("Coincident", 26, 2, 24, 2),
    Sketcher.Constraint("Coincident", 27, 1, 28, 1),
    Sketcher.Constraint("Coincident", 28, 2, 29, 1),
    Sketcher.Constraint("Coincident", 29, 2, 27, 2),
    Sketcher.Constraint("Coincident", 30, 1, 31, 1),
    Sketcher.Constraint("Coincident", 31, 2, 32, 1),
    Sketcher.Constraint("Coincident", 32, 2, 30, 2),
    Sketcher.Constraint("Coincident", 33, 1, 34, 1),
    Sketcher.Constraint("Coincident", 34, 2, 35, 1),
    Sketcher.Constraint("Coincident", 35, 2, 33, 2),
    Sketcher.Constraint("Coincident", 36, 1, 37, 1),
    Sketcher.Constraint("Coincident", 37, 2, 38, 1),
    Sketcher.Constraint("Coincident", 38, 2, 36, 2),
    Sketcher.Constraint("Coincident", 39, 1, 40, 1),
    Sketcher.Constraint("Coincident", 40, 2, 41, 1),
    Sketcher.Constraint("Coincident", 41, 2, 39, 2),
    Sketcher.Constraint("Coincident", 42, 1, 43, 1),
    Sketcher.Constraint("Coincident", 43, 2, 44, 1),
    Sketcher.Constraint("Coincident", 44, 2, 42, 2),
    Sketcher.Constraint("Coincident", 45, 2, 46, 2),
    Sketcher.Constraint("Coincident", 46, 1, 47, 1),
    Sketcher.Constraint("Coincident", 47, 2, 45, 1),
    Sketcher.Constraint("Coincident", 48, 2, 49, 2),
    Sketcher.Constraint("Coincident", 49, 1, 50, 1),
    Sketcher.Constraint("Coincident", 50, 2, 48, 1),
    Sketcher.Constraint("Coincident", 51, 2, 52, 2),
    Sketcher.Constraint("Coincident", 52, 1, 53, 1),
    Sketcher.Constraint("Coincident", 53, 2, 51, 1),
    Sketcher.Constraint("Coincident", 54, 2, 55, 2),
    Sketcher.Constraint("Coincident", 55, 1, 56, 1),
    Sketcher.Constraint("Coincident", 56, 2, 54, 1),
    Sketcher.Constraint("Coincident", 57, 2, 58, 2),
    Sketcher.Constraint("Coincident", 58, 1, 59, 1),
    Sketcher.Constraint("Coincident", 59, 2, 57, 1),
    Sketcher.Constraint("Coincident", 60, 2, 61, 2),
    Sketcher.Constraint("Coincident", 61, 1, 62, 1),
    Sketcher.Constraint("Coincident", 62, 2, 60, 1),
    Sketcher.Constraint("Coincident", 63, 2, 64, 2),
    Sketcher.Constraint("Coincident", 64, 1, 65, 1),
    Sketcher.Constraint("Coincident", 65, 2, 63, 1),
    Sketcher.Constraint("Coincident", 66, 2, 67, 2),
    Sketcher.Constraint("Coincident", 67, 1, 68, 1),
    Sketcher.Constraint("Coincident", 68, 2, 66, 1),
    Sketcher.Constraint("Coincident", 69, 2, 70, 2),
    Sketcher.Constraint("Coincident", 70, 1, 71, 1),
    Sketcher.Constraint("Coincident", 71, 2, 69, 1),
    Sketcher.Constraint("Coincident", 1, 3, -1, 1),
    Sketcher.Constraint("Coincident", 4, 3, -1, 1),
    Sketcher.Constraint("Coincident", 7, 3, -1, 1),
    Sketcher.Constraint("Coincident", 9, 3, -1, 1),
    Sketcher.Constraint("Coincident", 12, 3, -1, 1),
    Sketcher.Constraint("Coincident", 15, 3, -1, 1),
    Sketcher.Constraint("Coincident", 18, 3, -1, 1),
    Sketcher.Constraint("Coincident", 21, 3, -1, 1),
    Sketcher.Constraint("Coincident", 24, 3, -1, 1),
    Sketcher.Constraint("Coincident", 27, 3, -1, 1),
    Sketcher.Constraint("Coincident", 30, 3, -1, 1),
    Sketcher.Constraint("Coincident", 33, 3, -1, 1),
    Sketcher.Constraint("Coincident", 36, 3, -1, 1),
    Sketcher.Constraint("Coincident", 39, 3, -1, 1),
    Sketcher.Constraint("Coincident", 42, 3, -1, 1),
    Sketcher.Constraint("Coincident", 46, 3, -1, 1),
    Sketcher.Constraint("Coincident", 49, 3, -1, 1),
    Sketcher.Constraint("Coincident", 52, 3, -1, 1),
    Sketcher.Constraint("Coincident", 55, 3, -1, 1),
    Sketcher.Constraint("Coincident", 58, 3, -1, 1),
    Sketcher.Constraint("Coincident", 61, 3, -1, 1),
    Sketcher.Constraint("Coincident", 64, 3, -1, 1),
    Sketcher.Constraint("Coincident", 67, 3, -1, 1),
    Sketcher.Constraint("Coincident", 70, 3, -1, 1),
    Sketcher.Constraint("Equal", 1, 4),
    Sketcher.Constraint("Equal", 4, 7),
    Sketcher.Constraint("Equal", 7, 9),
    Sketcher.Constraint("Equal", 9, 12),
    Sketcher.Constraint("Equal", 12, 15),
    Sketcher.Constraint("Equal", 15, 18),
    Sketcher.Constraint("Equal", 18, 21),
    Sketcher.Constraint("Equal", 21, 24),
    Sketcher.Constraint("Equal", 24, 27),
    Sketcher.Constraint("Equal", 27, 30),
    Sketcher.Constraint("Equal", 30, 33),
    Sketcher.Constraint("Equal", 33, 36),
    Sketcher.Constraint("Equal", 36, 39),
    Sketcher.Constraint("Equal", 39, 42),
    Sketcher.Constraint("Equal", 42, 46),
    Sketcher.Constraint("Equal", 46, 49),
    Sketcher.Constraint("Equal", 49, 52),
    Sketcher.Constraint("Equal", 52, 55),
    Sketcher.Constraint("Equal", 55, 58),
    Sketcher.Constraint("Equal", 58, 61),
    Sketcher.Constraint("Equal", 61, 64),
    Sketcher.Constraint("Equal", 64, 67),
    Sketcher.Constraint("Equal", 67, 70),
    Sketcher.Constraint("Symmetric", 2, 2, 37, 2, -1, 1),
    Sketcher.Constraint("Symmetric", 5, 2, 40, 2, -1, 1),
    Sketcher.Constraint("Symmetric", 8, 2, 43, 2, -1, 1),
    Sketcher.Constraint("Symmetric", 10, 2, 47, 2, -1, 1),
    Sketcher.Constraint("Symmetric", 13, 2, 50, 2, -1, 1),
    Sketcher.Constraint("Symmetric", 16, 2, 53, 2, -1, 1),
    Sketcher.Constraint("Symmetric", 19, 2, 56, 2, -1, 1),
    Sketcher.Constraint("Symmetric", 22, 2, 59, 2, -1, 1),
    Sketcher.Constraint("Symmetric", 25, 2, 62, 2, -1, 1),
    Sketcher.Constraint("Symmetric", 28, 2, 65, 2, -1, 1),
    Sketcher.Constraint("Symmetric", 31, 2, 68, 2, -1, 1),
    Sketcher.Constraint("Symmetric", 34, 2, 71, 2, -1, 1),
    Sketcher.Constraint("PointOnObject", 9, 1, -2),
    Sketcher.Constraint("PointOnObject", 27, 1, -1),
    Sketcher.Constraint("PointOnObject", 46, 1, -2),
    Sketcher.Constraint("PointOnObject", 64, 1, -1),
    Sketcher.Constraint("Perpendicular", 2, 19),
    Sketcher.Constraint("Perpendicular", 0, 20),
    Sketcher.Constraint("Perpendicular", 5, 22),
    Sketcher.Constraint("Perpendicular", 3, 23),
    Sketcher.Constraint("Perpendicular", 8, 25),
    Sketcher.Constraint("Perpendicular", 6, 26),
    Sketcher.Constraint("Perpendicular", 10, 28),
    Sketcher.Constraint("Perpendicular", 11, 29),
    Sketcher.Constraint("Perpendicular", 13, 31),
    Sketcher.Constraint("Perpendicular", 14, 32),
    Sketcher.Constraint("Perpendicular", 16, 34),
    Sketcher.Constraint("Perpendicular", 17, 35),
    Sketcher.Constraint("Perpendicular", 19, 37),
    Sketcher.Constraint("Perpendicular", 20, 38),
    Sketcher.Constraint("Perpendicular", 22, 40),
    Sketcher.Constraint("Perpendicular", 23, 41),
    Sketcher.Constraint("Perpendicular", 25, 43),
    Sketcher.Constraint("Perpendicular", 26, 44),
    Sketcher.Constraint("Perpendicular", 29, 45),
    Sketcher.Constraint("Perpendicular", 32, 48),
    Sketcher.Constraint("Perpendicular", 31, 50),
    Sketcher.Constraint("Perpendicular", 35, 51),
    Sketcher.Constraint("Perpendicular", 34, 53),
    Sketcher.Constraint("Perpendicular", 38, 54),
    Sketcher.Constraint("Perpendicular", 37, 56),
    Sketcher.Constraint("Perpendicular", 41, 57),
    Sketcher.Constraint("Perpendicular", 40, 59),
    Sketcher.Constraint("Perpendicular", 44, 60),
    Sketcher.Constraint("Perpendicular", 43, 62),
    Sketcher.Constraint("Perpendicular", 45, 63),
    Sketcher.Constraint("Perpendicular", 48, 66),
    Sketcher.Constraint("Perpendicular", 50, 68),
    Sketcher.Constraint("Perpendicular", 51, 69),
    Sketcher.Constraint("Perpendicular", 53, 71),
    Sketcher.Constraint("Horizontal", 7, 1, 12, 1),
    Sketcher.Constraint("Horizontal", 4, 1, 15, 1),
    Sketcher.Constraint("Horizontal", 1, 1, 18, 1),
    Sketcher.Constraint("Horizontal", 33, 1, 58, 1),
    Sketcher.Constraint("Horizontal", 30, 1, 61, 1),
    Sketcher.Constraint("Equal", 0, 2),
    Sketcher.Constraint("Equal", 2, 3),
    Sketcher.Constraint("Equal", 3, 5),
    Sketcher.Constraint("Equal", 5, 6),
    Sketcher.Constraint("Equal", 6, 8),
    Sketcher.Constraint("Equal", 8, 10),
    Sketcher.Constraint("Equal", 10, 11),
    Sketcher.Constraint("Equal", 11, 13),
    Sketcher.Constraint("Equal", 13, 14),
    Sketcher.Constraint("Equal", 14, 16),
    Sketcher.Constraint("Equal", 16, 17),
    Sketcher.Constraint("Equal", 17, 19),
    Sketcher.Constraint("Equal", 19, 20),
    Sketcher.Constraint("Equal", 20, 22),
    Sketcher.Constraint("Equal", 22, 23),
    Sketcher.Constraint("Equal", 23, 25),
    Sketcher.Constraint("Equal", 25, 26),
    Sketcher.Constraint("Equal", 26, 28),
    Sketcher.Constraint("Equal", 29, 31),
    Sketcher.Constraint("Equal", 32, 34),
    Sketcher.Constraint("Radius", 1, Q("2.915 mm")),
    Sketcher.Constraint("DistanceX", -1, 1, 11, 2, Q("0.75 mm")),
    Sketcher.Constraint("DistanceX", 4, 1, -1, 1, Q("1.4575 mm")),
    Sketcher.Constraint("Distance", 0, Q("0.543521 mm")),
    Sketcher.Constraint("DistanceY", 2, 2, -1, 1, Q("1.982178 mm")),
    Sketcher.Constraint("DistanceY", 5, 2, -1, 1, Q("2.308941 mm")),
    Sketcher.Constraint("DistanceX", -1, 1, 13, 2, Q("0.95488 mm")),
    Sketcher.Constraint("DistanceX", -1, 1, 17, 2, Q("2.057951 mm")),
    Sketcher.Constraint("DistanceX", 6, 2, -1, 1, Q("0.004614 mm")),
    Sketcher.Constraint("DistanceX", 7, 1, -1, 1, Q("0.754458 mm")),
])
pocket2 = body.newObject("PartDesign::Pocket", "Pocket001")
pocket2.Profile = sketch9
pocket2.Length = 11.6
pocket2.Reversed = True

# Sketch on XZ plane
sketch10 = body.newObject("Sketcher::SketchObject", "Sketch009")
sketch10.AttachmentSupport = (doc.getObject("XZ_Plane"), [""])
sketch10.MapMode = "FlatFace"
sketch10.AttachmentOffset = App.Placement(V(0, 0, -31.27), App.Rotation())
sketch10.addGeometry([
    Part.LineSegment(V(-0.4, -3.4, 0), V(-0.4, 3.3, 0)),
    Part.LineSegment(V(-0.4, 3.3, 0), V(0.4, 3.3, 0)),
    Part.LineSegment(V(0.4, 3.3, 0), V(0.4, -3.4, 0)),
    Part.LineSegment(V(0.4, -3.4, 0), V(-0.4, -3.4, 0)),
], False)
sketch10.addConstraint([
    Sketcher.Constraint("Coincident", 0, 2, 1, 1),
    Sketcher.Constraint("Coincident", 1, 2, 2, 1),
    Sketcher.Constraint("Coincident", 2, 2, 3, 1),
    Sketcher.Constraint("Coincident", 3, 2, 0, 1),
    Sketcher.Constraint("Vertical", 0),
    Sketcher.Constraint("Horizontal", 1),
    Sketcher.Constraint("Vertical", 2),
    Sketcher.Constraint("Horizontal", 3),
    Sketcher.Constraint("DistanceX", 1, 1, 1, 2, Q("0.8 mm")),
    Sketcher.Constraint("DistanceX", 0, 2, -1, 1, Q("0.4 mm")),
    Sketcher.Constraint("DistanceY", 0, 1, 0, 2, Q("6.735502 mm")),
    Sketcher.Constraint("DistanceY", -1, 1, 0, 2, Q("3.344291 mm")),
])
pocket3 = body.newObject("PartDesign::Pocket", "Pocket002")
pocket3.Profile = sketch10
pocket3.Length = 11.6
pocket3.Reversed = True

doc.recompute()
